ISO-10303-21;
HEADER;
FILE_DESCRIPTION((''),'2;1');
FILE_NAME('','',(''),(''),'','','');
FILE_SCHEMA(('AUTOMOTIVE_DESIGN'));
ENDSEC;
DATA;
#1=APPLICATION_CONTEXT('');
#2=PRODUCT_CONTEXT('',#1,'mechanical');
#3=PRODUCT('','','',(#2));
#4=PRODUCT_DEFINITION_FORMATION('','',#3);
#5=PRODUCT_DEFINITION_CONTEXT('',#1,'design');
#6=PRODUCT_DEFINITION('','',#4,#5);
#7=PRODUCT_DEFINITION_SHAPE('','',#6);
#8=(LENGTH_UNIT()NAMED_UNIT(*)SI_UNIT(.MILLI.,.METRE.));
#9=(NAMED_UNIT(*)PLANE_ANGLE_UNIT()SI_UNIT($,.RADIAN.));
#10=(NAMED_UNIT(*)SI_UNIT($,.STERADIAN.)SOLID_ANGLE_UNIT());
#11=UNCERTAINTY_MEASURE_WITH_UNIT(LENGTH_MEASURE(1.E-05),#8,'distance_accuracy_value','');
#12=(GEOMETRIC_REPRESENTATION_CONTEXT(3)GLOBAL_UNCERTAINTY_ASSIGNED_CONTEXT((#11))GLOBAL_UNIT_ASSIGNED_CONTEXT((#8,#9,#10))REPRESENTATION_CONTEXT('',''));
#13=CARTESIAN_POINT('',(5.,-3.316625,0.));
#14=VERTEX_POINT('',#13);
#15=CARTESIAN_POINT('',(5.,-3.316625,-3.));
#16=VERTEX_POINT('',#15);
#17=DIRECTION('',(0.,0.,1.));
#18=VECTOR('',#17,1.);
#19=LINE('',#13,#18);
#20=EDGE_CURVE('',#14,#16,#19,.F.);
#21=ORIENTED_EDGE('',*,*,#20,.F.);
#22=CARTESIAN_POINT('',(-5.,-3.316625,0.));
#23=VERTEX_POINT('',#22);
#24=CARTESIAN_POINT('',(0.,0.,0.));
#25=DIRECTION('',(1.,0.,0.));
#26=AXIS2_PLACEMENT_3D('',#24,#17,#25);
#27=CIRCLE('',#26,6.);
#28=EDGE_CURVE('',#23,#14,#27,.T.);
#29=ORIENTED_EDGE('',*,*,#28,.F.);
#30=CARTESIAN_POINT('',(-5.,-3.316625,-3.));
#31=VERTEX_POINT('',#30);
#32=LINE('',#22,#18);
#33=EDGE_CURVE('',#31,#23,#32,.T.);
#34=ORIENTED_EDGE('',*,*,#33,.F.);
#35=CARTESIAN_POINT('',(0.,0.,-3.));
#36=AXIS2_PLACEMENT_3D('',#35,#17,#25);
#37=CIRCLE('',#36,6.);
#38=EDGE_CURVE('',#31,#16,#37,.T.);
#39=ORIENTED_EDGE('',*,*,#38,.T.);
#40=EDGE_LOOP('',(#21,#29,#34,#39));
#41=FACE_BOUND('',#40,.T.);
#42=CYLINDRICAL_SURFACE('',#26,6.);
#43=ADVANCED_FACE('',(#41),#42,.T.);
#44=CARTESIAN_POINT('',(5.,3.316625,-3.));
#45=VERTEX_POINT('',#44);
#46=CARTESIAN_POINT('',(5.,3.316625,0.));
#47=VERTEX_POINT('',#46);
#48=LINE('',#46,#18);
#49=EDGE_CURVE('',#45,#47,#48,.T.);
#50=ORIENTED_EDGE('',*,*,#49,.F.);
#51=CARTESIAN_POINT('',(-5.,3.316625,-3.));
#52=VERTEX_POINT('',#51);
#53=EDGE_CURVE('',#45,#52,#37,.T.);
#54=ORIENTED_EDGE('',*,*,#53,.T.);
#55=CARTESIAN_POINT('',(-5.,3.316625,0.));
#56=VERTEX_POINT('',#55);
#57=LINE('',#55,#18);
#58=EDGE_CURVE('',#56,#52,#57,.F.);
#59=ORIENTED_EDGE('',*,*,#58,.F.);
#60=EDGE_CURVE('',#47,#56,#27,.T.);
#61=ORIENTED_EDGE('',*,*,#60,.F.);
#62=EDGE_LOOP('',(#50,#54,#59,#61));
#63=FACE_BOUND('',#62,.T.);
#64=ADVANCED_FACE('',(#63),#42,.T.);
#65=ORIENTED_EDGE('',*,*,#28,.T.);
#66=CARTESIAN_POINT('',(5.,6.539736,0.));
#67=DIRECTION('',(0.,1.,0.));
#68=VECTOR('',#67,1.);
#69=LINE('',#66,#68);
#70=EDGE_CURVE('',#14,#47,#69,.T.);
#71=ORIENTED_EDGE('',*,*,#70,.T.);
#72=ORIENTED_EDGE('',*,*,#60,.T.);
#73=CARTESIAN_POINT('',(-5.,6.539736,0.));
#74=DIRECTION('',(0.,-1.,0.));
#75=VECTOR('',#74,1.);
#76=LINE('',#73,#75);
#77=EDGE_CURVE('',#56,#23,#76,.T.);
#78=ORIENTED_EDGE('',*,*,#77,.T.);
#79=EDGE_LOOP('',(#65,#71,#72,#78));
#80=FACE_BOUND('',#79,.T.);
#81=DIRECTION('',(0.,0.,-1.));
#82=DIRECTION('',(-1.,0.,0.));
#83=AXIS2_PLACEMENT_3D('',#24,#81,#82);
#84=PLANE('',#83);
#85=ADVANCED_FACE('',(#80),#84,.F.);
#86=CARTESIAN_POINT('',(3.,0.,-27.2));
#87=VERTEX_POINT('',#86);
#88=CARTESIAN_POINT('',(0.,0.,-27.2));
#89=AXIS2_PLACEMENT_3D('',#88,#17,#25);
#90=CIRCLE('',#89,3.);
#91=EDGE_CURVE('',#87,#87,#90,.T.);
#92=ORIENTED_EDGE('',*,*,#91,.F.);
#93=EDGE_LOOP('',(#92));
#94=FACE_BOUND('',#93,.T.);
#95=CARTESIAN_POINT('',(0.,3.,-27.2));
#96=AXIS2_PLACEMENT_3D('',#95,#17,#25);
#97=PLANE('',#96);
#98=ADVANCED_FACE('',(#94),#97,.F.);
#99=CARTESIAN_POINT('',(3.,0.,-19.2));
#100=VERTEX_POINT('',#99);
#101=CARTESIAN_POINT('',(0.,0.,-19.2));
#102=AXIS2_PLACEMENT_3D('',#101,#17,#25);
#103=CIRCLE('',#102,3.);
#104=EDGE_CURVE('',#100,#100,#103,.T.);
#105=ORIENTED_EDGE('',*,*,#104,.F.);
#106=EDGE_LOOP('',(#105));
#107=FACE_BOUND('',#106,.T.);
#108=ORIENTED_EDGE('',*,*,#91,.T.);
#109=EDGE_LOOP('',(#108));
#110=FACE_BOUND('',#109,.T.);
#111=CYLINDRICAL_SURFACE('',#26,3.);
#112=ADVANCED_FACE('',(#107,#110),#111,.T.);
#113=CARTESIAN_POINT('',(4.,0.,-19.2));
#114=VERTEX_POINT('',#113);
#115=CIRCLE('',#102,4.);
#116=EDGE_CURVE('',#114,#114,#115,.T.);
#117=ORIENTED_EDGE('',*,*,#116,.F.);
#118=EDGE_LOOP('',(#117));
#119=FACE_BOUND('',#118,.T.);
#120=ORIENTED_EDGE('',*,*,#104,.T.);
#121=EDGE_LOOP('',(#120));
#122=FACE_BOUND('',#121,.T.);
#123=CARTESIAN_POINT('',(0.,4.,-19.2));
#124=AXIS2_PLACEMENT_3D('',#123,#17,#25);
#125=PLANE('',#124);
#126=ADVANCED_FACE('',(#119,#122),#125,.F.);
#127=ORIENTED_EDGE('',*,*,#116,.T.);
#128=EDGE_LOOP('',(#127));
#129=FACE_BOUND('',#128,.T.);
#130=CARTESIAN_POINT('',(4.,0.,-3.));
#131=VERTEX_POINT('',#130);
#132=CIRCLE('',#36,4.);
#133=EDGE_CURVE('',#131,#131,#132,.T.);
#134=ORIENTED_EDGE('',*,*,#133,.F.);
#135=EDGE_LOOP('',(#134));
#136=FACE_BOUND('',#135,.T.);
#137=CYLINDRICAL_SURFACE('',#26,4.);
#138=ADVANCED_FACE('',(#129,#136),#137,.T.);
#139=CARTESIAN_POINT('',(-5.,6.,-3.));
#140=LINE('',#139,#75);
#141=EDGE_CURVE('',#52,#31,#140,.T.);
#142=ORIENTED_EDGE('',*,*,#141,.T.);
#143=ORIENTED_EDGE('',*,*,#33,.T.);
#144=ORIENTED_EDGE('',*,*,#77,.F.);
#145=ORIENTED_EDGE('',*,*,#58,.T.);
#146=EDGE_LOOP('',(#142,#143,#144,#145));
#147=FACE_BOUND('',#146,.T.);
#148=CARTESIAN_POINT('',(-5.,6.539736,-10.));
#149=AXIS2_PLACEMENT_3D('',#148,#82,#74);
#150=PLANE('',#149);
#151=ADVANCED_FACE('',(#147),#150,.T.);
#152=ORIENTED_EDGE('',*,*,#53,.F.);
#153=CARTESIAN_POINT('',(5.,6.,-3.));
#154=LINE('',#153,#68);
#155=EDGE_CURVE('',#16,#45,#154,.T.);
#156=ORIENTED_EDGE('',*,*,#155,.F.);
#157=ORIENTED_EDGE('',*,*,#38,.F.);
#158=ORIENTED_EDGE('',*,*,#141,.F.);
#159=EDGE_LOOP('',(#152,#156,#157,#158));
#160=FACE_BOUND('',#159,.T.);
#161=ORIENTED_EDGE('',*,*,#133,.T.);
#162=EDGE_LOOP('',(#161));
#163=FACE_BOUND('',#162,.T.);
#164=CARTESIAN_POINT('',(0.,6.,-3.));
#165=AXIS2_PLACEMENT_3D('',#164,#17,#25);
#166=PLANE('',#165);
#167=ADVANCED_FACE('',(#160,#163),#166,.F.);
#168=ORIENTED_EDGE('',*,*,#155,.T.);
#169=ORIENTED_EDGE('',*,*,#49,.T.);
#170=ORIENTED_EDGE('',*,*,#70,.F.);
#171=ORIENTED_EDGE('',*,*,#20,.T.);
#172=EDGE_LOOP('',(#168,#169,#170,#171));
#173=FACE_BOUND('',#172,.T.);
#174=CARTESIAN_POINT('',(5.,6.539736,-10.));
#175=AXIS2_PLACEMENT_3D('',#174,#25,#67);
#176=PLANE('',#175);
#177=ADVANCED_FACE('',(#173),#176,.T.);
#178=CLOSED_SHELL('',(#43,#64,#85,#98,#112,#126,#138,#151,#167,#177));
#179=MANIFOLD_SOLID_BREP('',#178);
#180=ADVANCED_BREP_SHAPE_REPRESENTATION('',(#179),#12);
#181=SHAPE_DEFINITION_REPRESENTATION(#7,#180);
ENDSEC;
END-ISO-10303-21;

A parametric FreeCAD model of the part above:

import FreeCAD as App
import Part
import Sketcher
from FreeCAD import Vector


def add_polygon(sketch, points):
    """Adds a closed chain of lines whose ends are joined by coincident constraints."""
    first, n = sketch.GeometryCount, len(points)
    for a, b in zip(points, points[1:] + points[:1]):
        sketch.addGeometry(Part.LineSegment(App.Vector(*a, 0), App.Vector(*b, 0)), False)
    for i in range(n):
        sketch.addConstraint(Sketcher.Constraint("Coincident", first + i, 2, first + (i + 1) % n, 1))

doc = App.newDocument("Part")
body = doc.addObject("PartDesign::Body", "Body")

# Sketch on YZ plane
sketch1 = body.newObject("Sketcher::SketchObject", "Sketch")
sketch1.AttachmentSupport = (doc.getObject("YZ_Plane"), [""])
sketch1.MapMode = "FlatFace"
add_polygon(sketch1, [(6, 0), (0, 0), (0, -27.2), (3, -27.2), (3, -19.2), (4, -19.2), (4, -3), (6, -3)])  # lines 0-7
sketch1.addConstraint([
    Sketcher.Constraint("Horizontal", 0),
    Sketcher.Constraint("Vertical", 1),
    Sketcher.Constraint("Horizontal", 2),
    Sketcher.Constraint("Vertical", 3),
    Sketcher.Constraint("Horizontal", 4),
    Sketcher.Constraint("Vertical", 5),
    Sketcher.Constraint("Horizontal", 6),
    Sketcher.Constraint("Vertical", 7),
    Sketcher.Constraint("Coincident", 0, 2, -1, 1),
    Sketcher.Constraint("Equal", 2, 7),
    Sketcher.Constraint("DistanceX", 0, 2, 0, 1, 6.0),
    Sketcher.Constraint("DistanceX", 2, 1, 2, 2, 3.0),
    Sketcher.Constraint("DistanceX", 4, 1, 4, 2, 1.0),
    Sketcher.Constraint("DistanceY", 3, 1, 3, 2, 8.0),
    Sketcher.Constraint("DistanceY", 1, 2, 1, 1, 27.2),
])
revolution = body.newObject("PartDesign::Revolution", "Revolution")
revolution.Profile = sketch1
revolution.ReferenceAxis = (sketch1, ["V_Axis"])
revolution.Angle = 360

# Sketch on XY plane
sketch2 = body.newObject("Sketcher::SketchObject", "Sketch001")
sketch2.AttachmentSupport = (doc.getObject("XY_Plane"), [""])
sketch2.MapMode = "FlatFace"
add_polygon(sketch2, [(-10, 10), (-10, -10), (10, -10), (10, 10)])  # lines 0-3
add_polygon(sketch2, [(5, -7), (-5, -7), (-5, 7), (5, 7)])  # lines 4-7
sketch2.addConstraint([
    Sketcher.Constraint("Vertical", 0),
    Sketcher.Constraint("Horizontal", 1),
    Sketcher.Constraint("Vertical", 2),
    Sketcher.Constraint("Horizontal", 3),
    Sketcher.Constraint("Horizontal", 4),
    Sketcher.Constraint("Vertical", 5),
    Sketcher.Constraint("Horizontal", 6),
    Sketcher.Constraint("Vertical", 7),
    Sketcher.Constraint("Symmetric", 0, 2, 2, 2, -1, 1),
    Sketcher.Constraint("Symmetric", 4, 2, 6, 2, -1, 1),
    Sketcher.Constraint("Equal", 3, 0),
    Sketcher.Constraint("DistanceX", 4, 2, 4, 1, 10.0),
    Sketcher.Constraint("DistanceX", 1, 1, 1, 2, 20.412),
    Sketcher.Constraint("DistanceY", 5, 1, 5, 2, 13.079472),
])
pocket1 = body.newObject("PartDesign::Pocket", "Pocket")
pocket1.Profile = sketch2
pocket1.Length = 10

doc.recompute()
